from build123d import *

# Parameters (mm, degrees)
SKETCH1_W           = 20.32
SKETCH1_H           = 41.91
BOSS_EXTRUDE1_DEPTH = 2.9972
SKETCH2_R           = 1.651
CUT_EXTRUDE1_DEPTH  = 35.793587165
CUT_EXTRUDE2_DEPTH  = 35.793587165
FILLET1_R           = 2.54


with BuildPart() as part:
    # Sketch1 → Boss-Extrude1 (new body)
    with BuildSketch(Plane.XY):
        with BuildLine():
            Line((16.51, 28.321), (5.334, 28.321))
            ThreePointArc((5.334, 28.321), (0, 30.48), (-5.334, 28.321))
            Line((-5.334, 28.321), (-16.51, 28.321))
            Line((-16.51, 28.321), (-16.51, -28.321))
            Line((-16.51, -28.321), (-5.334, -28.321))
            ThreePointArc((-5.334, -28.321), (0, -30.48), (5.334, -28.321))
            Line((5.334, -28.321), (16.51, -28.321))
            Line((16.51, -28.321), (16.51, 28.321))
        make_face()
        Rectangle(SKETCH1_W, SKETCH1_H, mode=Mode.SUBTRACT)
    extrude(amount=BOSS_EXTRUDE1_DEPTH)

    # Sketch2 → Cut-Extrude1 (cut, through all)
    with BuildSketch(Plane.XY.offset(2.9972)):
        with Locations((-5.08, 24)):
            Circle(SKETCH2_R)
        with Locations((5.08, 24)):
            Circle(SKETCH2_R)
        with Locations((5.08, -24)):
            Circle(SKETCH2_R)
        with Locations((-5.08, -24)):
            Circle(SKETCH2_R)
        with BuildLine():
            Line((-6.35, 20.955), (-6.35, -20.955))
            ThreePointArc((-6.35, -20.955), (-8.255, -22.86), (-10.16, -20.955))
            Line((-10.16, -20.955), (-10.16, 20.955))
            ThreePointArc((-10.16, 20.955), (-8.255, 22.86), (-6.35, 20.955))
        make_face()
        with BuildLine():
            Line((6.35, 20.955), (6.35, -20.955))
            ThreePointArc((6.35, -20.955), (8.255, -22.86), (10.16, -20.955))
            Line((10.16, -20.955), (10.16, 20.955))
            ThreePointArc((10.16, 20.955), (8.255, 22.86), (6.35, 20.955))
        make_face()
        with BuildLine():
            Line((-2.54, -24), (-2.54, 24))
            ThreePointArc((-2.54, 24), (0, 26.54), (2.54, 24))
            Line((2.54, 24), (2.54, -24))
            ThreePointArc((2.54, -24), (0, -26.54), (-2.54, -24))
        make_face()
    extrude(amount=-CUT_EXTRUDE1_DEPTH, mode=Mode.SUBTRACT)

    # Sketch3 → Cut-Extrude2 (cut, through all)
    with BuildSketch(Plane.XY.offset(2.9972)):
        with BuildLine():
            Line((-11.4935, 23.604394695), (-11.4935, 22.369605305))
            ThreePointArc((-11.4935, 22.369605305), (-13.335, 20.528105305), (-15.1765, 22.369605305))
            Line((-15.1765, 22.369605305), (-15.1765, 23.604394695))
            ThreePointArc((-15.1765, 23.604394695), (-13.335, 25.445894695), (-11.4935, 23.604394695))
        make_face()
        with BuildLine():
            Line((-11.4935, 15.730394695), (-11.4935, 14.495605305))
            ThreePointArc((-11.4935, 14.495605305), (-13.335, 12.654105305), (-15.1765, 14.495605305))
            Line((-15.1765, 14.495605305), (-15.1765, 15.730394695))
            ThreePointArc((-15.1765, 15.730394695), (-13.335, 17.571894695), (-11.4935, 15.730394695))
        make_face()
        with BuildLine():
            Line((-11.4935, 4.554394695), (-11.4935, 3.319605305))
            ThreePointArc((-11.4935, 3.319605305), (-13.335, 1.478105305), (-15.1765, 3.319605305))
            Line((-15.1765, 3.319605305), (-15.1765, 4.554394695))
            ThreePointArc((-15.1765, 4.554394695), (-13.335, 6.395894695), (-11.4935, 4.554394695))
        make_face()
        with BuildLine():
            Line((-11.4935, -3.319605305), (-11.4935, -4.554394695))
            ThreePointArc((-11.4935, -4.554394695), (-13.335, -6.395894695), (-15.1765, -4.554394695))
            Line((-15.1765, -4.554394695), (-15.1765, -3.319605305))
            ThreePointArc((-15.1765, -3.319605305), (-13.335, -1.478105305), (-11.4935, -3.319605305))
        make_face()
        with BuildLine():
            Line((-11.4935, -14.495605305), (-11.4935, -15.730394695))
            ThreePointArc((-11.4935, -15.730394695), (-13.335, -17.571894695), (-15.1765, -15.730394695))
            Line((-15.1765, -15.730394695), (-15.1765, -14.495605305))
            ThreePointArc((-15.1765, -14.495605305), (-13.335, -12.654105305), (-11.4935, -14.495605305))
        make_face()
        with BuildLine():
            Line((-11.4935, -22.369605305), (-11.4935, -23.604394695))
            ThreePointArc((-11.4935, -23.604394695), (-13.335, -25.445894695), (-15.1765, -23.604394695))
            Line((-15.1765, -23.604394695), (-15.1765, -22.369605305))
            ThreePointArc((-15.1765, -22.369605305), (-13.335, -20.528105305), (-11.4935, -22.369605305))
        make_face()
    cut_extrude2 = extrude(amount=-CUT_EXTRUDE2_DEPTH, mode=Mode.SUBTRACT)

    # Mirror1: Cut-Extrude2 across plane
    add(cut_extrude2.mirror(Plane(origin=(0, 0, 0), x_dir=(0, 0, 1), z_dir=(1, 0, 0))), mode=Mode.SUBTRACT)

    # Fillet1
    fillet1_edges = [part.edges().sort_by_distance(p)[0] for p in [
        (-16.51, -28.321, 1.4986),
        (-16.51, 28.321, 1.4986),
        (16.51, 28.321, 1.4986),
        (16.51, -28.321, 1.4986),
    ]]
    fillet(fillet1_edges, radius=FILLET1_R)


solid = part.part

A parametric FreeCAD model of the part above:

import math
import FreeCAD as App
import Part
import Sketcher
from FreeCAD import Vector
Q = App.Units.Quantity


def edges_at(feature, points):
    """Names of the edges that pass closest to the given points."""
    edges = feature.Shape.Edges
    near = lambda p: min(range(len(edges)), key=lambda i: edges[i].distToShape(Part.Vertex(*p))[0])
    return sorted({f"Edge{near(p) + 1}" for p in points})


def add_polygon(sketch, points):
    """Adds a closed chain of lines whose ends are joined by coincident constraints."""
    first, n = sketch.GeometryCount, len(points)
    for a, b in zip(points, points[1:] + points[:1]):
        sketch.addGeometry(Part.LineSegment(App.Vector(*a, 0), App.Vector(*b, 0)), False)
    for i in range(n):
        sketch.addConstraint(Sketcher.Constraint("Coincident", first + i, 2, first + (i + 1) % n, 1))

doc = App.newDocument("Part")
params = doc.addObject("Spreadsheet::Sheet", "Params")
for row, (alias, value) in enumerate([
    ("sketch1_width", "0.8 in"),
    ("sketch1_width2", "0.44 in"),
    ("sketch1_height", "2.23 in"),
    ("sketch1_height2", "1.65 in"),
    ("pad1_length", "0.118 in"),
    ("sketch2_radius", "0.1 in"),
    ("sketch2_diameter", "0.13 in"),
    ("sketch2_radius2", "0.075 in"),
    ("sketch2_height", "1.65 in"),
    ("fillet_radius", "0.1 in"),
], start=1):
    params.set(f"A{row}", alias)
    params.set(f"B{row}", "=" + value)
    params.setAlias(f"B{row}", alias)

body = doc.addObject("PartDesign::Body", "Body")

sketch1 = body.newObject("Sketcher::SketchObject", "Sketch")
sketch1.AttachmentSupport = (doc.getObject("XY_Plane"), [""])
sketch1.MapMode = "FlatFace"
sketch1.addGeometry(Part.LineSegment(Vector(17, 28, 0), Vector(5, 28, 0)), False)
sketch1.addGeometry(Part.ArcOfCircle(Part.Circle(Vector(0, 23, 0), Vector(0, 0, 1), 8), math.radians(46), math.radians(134)), False)
sketch1.addGeometry(Part.LineSegment(Vector(-5, 28, 0), Vector(-17, 28, 0)), False)
sketch1.addGeometry(Part.LineSegment(Vector(-17, 28, 0), Vector(-17, -28, 0)), False)
sketch1.addGeometry(Part.LineSegment(Vector(-17, -28, 0), Vector(-5, -28, 0)), False)
sketch1.addGeometry(Part.ArcOfCircle(Part.Circle(Vector(0, -23, 0), Vector(0, 0, 1), 8), math.radians(-134), math.radians(-46)), False)
sketch1.addGeometry(Part.LineSegment(Vector(5, -28, 0), Vector(17, -28, 0)), False)
sketch1.addGeometry(Part.LineSegment(Vector(17, -28, 0), Vector(17, 28, 0)), False)
add_polygon(sketch1, [(10, -21), (-10, -21), (-10, 21), (10, 21)])
sketch1.addConstraint(Sketcher.Constraint("Coincident", 0, 2, 1, 1))
sketch1.addConstraint(Sketcher.Constraint("Coincident", 1, 2, 2, 1))
sketch1.addConstraint(Sketcher.Constraint("Coincident", 2, 2, 3, 1))
sketch1.addConstraint(Sketcher.Constraint("Coincident", 3, 2, 4, 1))
sketch1.addConstraint(Sketcher.Constraint("Coincident", 4, 2, 5, 1))
sketch1.addConstraint(Sketcher.Constraint("Coincident", 5, 2, 6, 1))
sketch1.addConstraint(Sketcher.Constraint("Coincident", 6, 2, 7, 1))
sketch1.addConstraint(Sketcher.Constraint("Coincident", 7, 2, 0, 1))
sketch1.addConstraint(Sketcher.Constraint("Horizontal", 0))
sketch1.addConstraint(Sketcher.Constraint("Horizontal", 2))
sketch1.addConstraint(Sketcher.Constraint("Vertical", 3))
sketch1.addConstraint(Sketcher.Constraint("Horizontal", 4))
sketch1.addConstraint(Sketcher.Constraint("Horizontal", 6))
sketch1.addConstraint(Sketcher.Constraint("Vertical", 7))
sketch1.addConstraint(Sketcher.Constraint("Horizontal", 8))
sketch1.addConstraint(Sketcher.Constraint("Vertical", 9))
sketch1.addConstraint(Sketcher.Constraint("Horizontal", 10))
sketch1.addConstraint(Sketcher.Constraint("Vertical", 11))
sketch1.addConstraint(Sketcher.Constraint("Equal", 1, 5))
sketch1.addConstraint(Sketcher.Constraint("Symmetric", 1, 3, 5, 3, -1, 1))
sketch1.addConstraint(Sketcher.Constraint("Symmetric", 2, 2, 6, 2, -1, 1))
sketch1.addConstraint(Sketcher.Constraint("Symmetric", 8, 2, 10, 2, -1, 1))
sketch1.addConstraint(Sketcher.Constraint("Symmetric", 0, 2, 1, 2, -2))
sketch1.addConstraint(Sketcher.Constraint("Horizontal", 4, 2, 5, 2))
sketch1.addConstraint(Sketcher.Constraint("DistanceX", 8, 2, 8, 1, Q("0.8 in")))
sketch1.addConstraint(Sketcher.Constraint("DistanceX", 0, 2, 0, 1, Q("0.44 in")))
sketch1.addConstraint(Sketcher.Constraint("DistanceY", 3, 2, 3, 1, Q("2.23 in")))
sketch1.addConstraint(Sketcher.Constraint("DistanceY", 9, 1, 9, 2, Q("1.65 in")))
sketch1.addConstraint(Sketcher.Constraint("DistanceX", 3, 2, 6, 2, Q("1.3 in")))
sketch1.addConstraint(Sketcher.Constraint("Radius", 1, Q("7.668559 mm")))
sketch1.setExpression("Constraints[28]", "Params.sketch1_width")
sketch1.setExpression("Constraints[29]", "Params.sketch1_width2")
sketch1.setExpression("Constraints[30]", "Params.sketch1_height")
sketch1.setExpression("Constraints[31]", "Params.sketch1_height2")
pad1 = body.newObject("PartDesign::Pad", "Pad")
pad1.Profile = sketch1
pad1.setExpression("Length", "Params.pad1_length")

sketch2 = body.newObject("Sketcher::SketchObject", "Sketch001")
sketch2.AttachmentSupport = (doc.getObject("XY_Plane"), [""])
sketch2.MapMode = "FlatFace"
sketch2.AttachmentOffset = App.Placement(Vector(0, 0, 0.118 * 25.4), App.Rotation())
sketch2.addGeometry(Part.Circle(Vector(-5.1, 24, 0), Vector(0, 0, 1), 1.7), False)
sketch2.addGeometry(Part.Circle(Vector(5.1, 24, 0), Vector(0, 0, 1), 1.7), False)
sketch2.addGeometry(Part.Circle(Vector(5.1, -24, 0), Vector(0, 0, 1), 1.7), False)
sketch2.addGeometry(Part.Circle(Vector(-5.1, -24, 0), Vector(0, 0, 1), 1.7), False)
sketch2.addGeometry(Part.LineSegment(Vector(-6.3, -21, 0), Vector(-6.3, 21, 0)), False)
sketch2.addGeometry(Part.ArcOfCircle(Part.Circle(Vector(-8.3, 21, 0), Vector(0, 0, 1), 1.9), math.radians(0), math.radians(180)), False)
sketch2.addGeometry(Part.LineSegment(Vector(-10.2, 21, 0), Vector(-10.2, -21, 0)), False)
sketch2.addGeometry(Part.ArcOfCircle(Part.Circle(Vector(-8.3, -21, 0), Vector(0, 0, 1), 1.9), math.radians(180), math.radians(360)), False)
sketch2.addGeometry(Part.LineSegment(Vector(6.3, 21, 0), Vector(6.3, -21, 0)), False)
sketch2.addGeometry(Part.ArcOfCircle(Part.Circle(Vector(8.3, -21, 0), Vector(0, 0, 1), 1.9), math.radians(180), math.radians(360)), False)
sketch2.addGeometry(Part.LineSegment(Vector(10.2, -21, 0), Vector(10.2, 21, 0)), False)
sketch2.addGeometry(Part.ArcOfCircle(Part.Circle(Vector(8.3, 21, 0), Vector(0, 0, 1), 1.9), math.radians(0), math.radians(180)), False)
sketch2.addGeometry(Part.LineSegment(Vector(-2.5, 24, 0), Vector(-2.5, -24, 0)), False)
sketch2.addGeometry(Part.ArcOfCircle(Part.Circle(Vector(0, -24, 0), Vector(0, 0, 1), 2.5), math.radians(180), math.radians(360)), False)
sketch2.addGeometry(Part.LineSegment(Vector(2.5, -24, 0), Vector(2.5, 24, 0)), False)
sketch2.addGeometry(Part.ArcOfCircle(Part.Circle(Vector(0, 24, 0), Vector(0, 0, 1), 2.5), math.radians(0), math.radians(180)), False)
sketch2.addConstraint(Sketcher.Constraint("Tangent", 4, 2, 5, 1))
sketch2.addConstraint(Sketcher.Constraint("Tangent", 5, 2, 6, 1))
sketch2.addConstraint(Sketcher.Constraint("Tangent", 6, 2, 7, 1))
sketch2.addConstraint(Sketcher.Constraint("Tangent", 7, 2, 4, 1))
sketch2.addConstraint(Sketcher.Constraint("Tangent", 8, 2, 9, 1))
sketch2.addConstraint(Sketcher.Constraint("Tangent", 9, 2, 10, 1))
sketch2.addConstraint(Sketcher.Constraint("Tangent", 10, 2, 11, 1))
sketch2.addConstraint(Sketcher.Constraint("Tangent", 11, 2, 8, 1))
sketch2.addConstraint(Sketcher.Constraint("Tangent", 12, 2, 13, 1))
sketch2.addConstraint(Sketcher.Constraint("Tangent", 13, 2, 14, 1))
sketch2.addConstraint(Sketcher.Constraint("Tangent", 14, 2, 15, 1))
sketch2.addConstraint(Sketcher.Constraint("Tangent", 15, 2, 12, 1))
sketch2.addConstraint(Sketcher.Constraint("Vertical", 4))
sketch2.addConstraint(Sketcher.Constraint("Vertical", 6))
sketch2.addConstraint(Sketcher.Constraint("Vertical", 8))
sketch2.addConstraint(Sketcher.Constraint("Vertical", 10))
sketch2.addConstraint(Sketcher.Constraint("Vertical", 12))
sketch2.addConstraint(Sketcher.Constraint("Vertical", 14))
sketch2.addConstraint(Sketcher.Constraint("Equal", 0, 1))
sketch2.addConstraint(Sketcher.Constraint("Equal", 1, 2))
sketch2.addConstraint(Sketcher.Constraint("Equal", 2, 3))
sketch2.addConstraint(Sketcher.Constraint("Equal", 7, 9))
sketch2.addConstraint(Sketcher.Constraint("Symmetric", 0, 3, 2, 3, -1, 1))
sketch2.addConstraint(Sketcher.Constraint("Symmetric", 1, 3, 3, 3, -1, 1))
sketch2.addConstraint(Sketcher.Constraint("Symmetric", 5, 3, 9, 3, -1, 1))
sketch2.addConstraint(Sketcher.Constraint("Symmetric", 13, 3, 15, 3, -1, 1))
sketch2.addConstraint(Sketcher.Constraint("Symmetric", 0, 3, 1, 3, -2))
sketch2.addConstraint(Sketcher.Constraint("Horizontal", 7, 3, 9, 3))
sketch2.addConstraint(Sketcher.Constraint("Horizontal", 5, 3, 11, 3))
sketch2.addConstraint(Sketcher.Constraint("Horizontal", 3, 3, 13, 3))
sketch2.addConstraint(Sketcher.Constraint("Radius", 13, Q("0.1 in")))
sketch2.addConstraint(Sketcher.Constraint("Diameter", 0, Q("0.13 in")))
sketch2.addConstraint(Sketcher.Constraint("Radius", 5, Q("0.075 in")))
sketch2.addConstraint(Sketcher.Constraint("DistanceY", 4, 1, 4, 2, Q("1.65 in")))
sketch2.addConstraint(Sketcher.Constraint("DistanceX", 0, 3, -1, 1, Q("0.2 in")))
sketch2.addConstraint(Sketcher.Constraint("DistanceX", 5, 2, -1, 1, Q("0.4 in")))
sketch2.addConstraint(Sketcher.Constraint("DistanceY", 12, 2, 12, 1, Q("48 mm")))
sketch2.setExpression("Constraints[30]", "Params.sketch2_radius")
sketch2.setExpression("Constraints[31]", "Params.sketch2_diameter")
sketch2.setExpression("Constraints[32]", "Params.sketch2_radius2")
sketch2.setExpression("Constraints[33]", "Params.sketch2_height")
pocket1 = body.newObject("PartDesign::Pocket", "Pocket")
pocket1.Profile = sketch2
pocket1.Type = "ThroughAll"

sketch3 = body.newObject("Sketcher::SketchObject", "Sketch002")
sketch3.AttachmentSupport = (doc.getObject("XY_Plane"), [""])
sketch3.MapMode = "FlatFace"
sketch3.AttachmentOffset = App.Placement(Vector(0, 0, 0.118 * 25.4), App.Rotation())
sketch3.addGeometry(Part.LineSegment(Vector(-11.5, 22.4, 0), Vector(-11.5, 23.6, 0)), False)
sketch3.addGeometry(Part.ArcOfCircle(Part.Circle(Vector(-13.3, 23.6, 0), Vector(0, 0, 1), 1.8), math.radians(0), math.radians(180)), False)
sketch3.addGeometry(Part.LineSegment(Vector(-15.2, 23.6, 0), Vector(-15.2, 22.4, 0)), False)
sketch3.addGeometry(Part.ArcOfCircle(Part.Circle(Vector(-13.3, 22.4, 0), Vector(0, 0, 1), 1.8), math.radians(180), math.radians(360)), False)
sketch3.addGeometry(Part.LineSegment(Vector(-11.5, 14.5, 0), Vector(-11.5, 15.7, 0)), False)
sketch3.addGeometry(Part.ArcOfCircle(Part.Circle(Vector(-13.3, 15.7, 0), Vector(0, 0, 1), 1.8), math.radians(0), math.radians(180)), False)
sketch3.addGeometry(Part.LineSegment(Vector(-15.2, 15.7, 0), Vector(-15.2, 14.5, 0)), False)
sketch3.addGeometry(Part.ArcOfCircle(Part.Circle(Vector(-13.3, 14.5, 0), Vector(0, 0, 1), 1.8), math.radians(180), math.radians(360)), False)
sketch3.addGeometry(Part.LineSegment(Vector(-11.5, 3.3, 0), Vector(-11.5, 4.6, 0)), False)
sketch3.addGeometry(Part.ArcOfCircle(Part.Circle(Vector(-13.3, 4.6, 0), Vector(0, 0, 1), 1.8), math.radians(0), math.radians(180)), False)
sketch3.addGeometry(Part.LineSegment(Vector(-15.2, 4.6, 0), Vector(-15.2, 3.3, 0)), False)
sketch3.addGeometry(Part.ArcOfCircle(Part.Circle(Vector(-13.3, 3.3, 0), Vector(0, 0, 1), 1.8), math.radians(180), math.radians(360)), False)
sketch3.addGeometry(Part.LineSegment(Vector(-11.5, -4.6, 0), Vector(-11.5, -3.3, 0)), False)
sketch3.addGeometry(Part.ArcOfCircle(Part.Circle(Vector(-13.3, -3.3, 0), Vector(0, 0, 1), 1.8), math.radians(0), math.radians(180)), False)
sketch3.addGeometry(Part.LineSegment(Vector(-15.2, -3.3, 0), Vector(-15.2, -4.6, 0)), False)
sketch3.addGeometry(Part.ArcOfCircle(Part.Circle(Vector(-13.3, -4.6, 0), Vector(0, 0, 1), 1.8), math.radians(180), math.radians(360)), False)
sketch3.addGeometry(Part.LineSegment(Vector(-11.5, -15.7, 0), Vector(-11.5, -14.5, 0)), False)
sketch3.addGeometry(Part.ArcOfCircle(Part.Circle(Vector(-13.3, -14.5, 0), Vector(0, 0, 1), 1.8), math.radians(0), math.radians(180)), False)
sketch3.addGeometry(Part.LineSegment(Vector(-15.2, -14.5, 0), Vector(-15.2, -15.7, 0)), False)
sketch3.addGeometry(Part.ArcOfCircle(Part.Circle(Vector(-13.3, -15.7, 0), Vector(0, 0, 1), 1.8), math.radians(180), math.radians(360)), False)
sketch3.addGeometry(Part.LineSegment(Vector(-11.5, -23.6, 0), Vector(-11.5, -22.4, 0)), False)
sketch3.addGeometry(Part.ArcOfCircle(Part.Circle(Vector(-13.3, -22.4, 0), Vector(0, 0, 1), 1.8), math.radians(0), math.radians(180)), False)
sketch3.addGeometry(Part.LineSegment(Vector(-15.2, -22.4, 0), Vector(-15.2, -23.6, 0)), False)
sketch3.addGeometry(Part.ArcOfCircle(Part.Circle(Vector(-13.3, -23.6, 0), Vector(0, 0, 1), 1.8), math.radians(180), math.radians(360)), False)
sketch3.addConstraint(Sketcher.Constraint("Tangent", 0, 2, 1, 1))
sketch3.addConstraint(Sketcher.Constraint("Tangent", 1, 2, 2, 1))
sketch3.addConstraint(Sketcher.Constraint("Tangent", 2, 2, 3, 1))
sketch3.addConstraint(Sketcher.Constraint("Tangent", 3, 2, 0, 1))
sketch3.addConstraint(Sketcher.Constraint("Tangent", 4, 2, 5, 1))
sketch3.addConstraint(Sketcher.Constraint("Tangent", 5, 2, 6, 1))
sketch3.addConstraint(Sketcher.Constraint("Tangent", 6, 2, 7, 1))
sketch3.addConstraint(Sketcher.Constraint("Tangent", 7, 2, 4, 1))
sketch3.addConstraint(Sketcher.Constraint("Tangent", 8, 2, 9, 1))
sketch3.addConstraint(Sketcher.Constraint("Tangent", 9, 2, 10, 1))
sketch3.addConstraint(Sketcher.Constraint("Tangent", 10, 2, 11, 1))
sketch3.addConstraint(Sketcher.Constraint("Tangent", 11, 2, 8, 1))
sketch3.addConstraint(Sketcher.Constraint("Tangent", 12, 2, 13, 1))
sketch3.addConstraint(Sketcher.Constraint("Tangent", 13, 2, 14, 1))
sketch3.addConstraint(Sketcher.Constraint("Tangent", 14, 2, 15, 1))
sketch3.addConstraint(Sketcher.Constraint("Tangent", 15, 2, 12, 1))
sketch3.addConstraint(Sketcher.Constraint("Tangent", 16, 2, 17, 1))
sketch3.addConstraint(Sketcher.Constraint("Tangent", 17, 2, 18, 1))
sketch3.addConstraint(Sketcher.Constraint("Tangent", 18, 2, 19, 1))
sketch3.addConstraint(Sketcher.Constraint("Tangent", 19, 2, 16, 1))
sketch3.addConstraint(Sketcher.Constraint("Tangent", 20, 2, 21, 1))
sketch3.addConstraint(Sketcher.Constraint("Tangent", 21, 2, 22, 1))
sketch3.addConstraint(Sketcher.Constraint("Tangent", 22, 2, 23, 1))
sketch3.addConstraint(Sketcher.Constraint("Tangent", 23, 2, 20, 1))
sketch3.addConstraint(Sketcher.Constraint("Vertical", 0))
sketch3.addConstraint(Sketcher.Constraint("Vertical", 2))
sketch3.addConstraint(Sketcher.Constraint("Vertical", 4))
sketch3.addConstraint(Sketcher.Constraint("Vertical", 6))
sketch3.addConstraint(Sketcher.Constraint("Vertical", 8))
sketch3.addConstraint(Sketcher.Constraint("Vertical", 10))
sketch3.addConstraint(Sketcher.Constraint("Vertical", 12))
sketch3.addConstraint(Sketcher.Constraint("Vertical", 14))
sketch3.addConstraint(Sketcher.Constraint("Vertical", 16))
sketch3.addConstraint(Sketcher.Constraint("Vertical", 18))
sketch3.addConstraint(Sketcher.Constraint("Vertical", 20))
sketch3.addConstraint(Sketcher.Constraint("Vertical", 22))
sketch3.addConstraint(Sketcher.Constraint("Equal", 3, 5))
sketch3.addConstraint(Sketcher.Constraint("Equal", 7, 9))
sketch3.addConstraint(Sketcher.Constraint("Equal", 11, 13))
sketch3.addConstraint(Sketcher.Constraint("Equal", 15, 17))
sketch3.addConstraint(Sketcher.Constraint("Equal", 19, 21))
sketch3.addConstraint(Sketcher.Constraint("Symmetric", 11, 3, 13, 3, -1))
sketch3.addConstraint(Sketcher.Constraint("Symmetric", 7, 3, 17, 3, -1))
sketch3.addConstraint(Sketcher.Constraint("Symmetric", 3, 3, 21, 3, -1))
sketch3.addConstraint(Sketcher.Constraint("Vertical", 3, 3, 5, 3))
sketch3.addConstraint(Sketcher.Constraint("Vertical", 7, 3, 9, 3))
sketch3.addConstraint(Sketcher.Constraint("Equal", 2, 4))
sketch3.addConstraint(Sketcher.Constraint("Equal", 6, 8))
sketch3.addConstraint(Sketcher.Constraint("Equal", 10, 12))
sketch3.addConstraint(Sketcher.Constraint("Equal", 14, 16))
sketch3.addConstraint(Sketcher.Constraint("Equal", 18, 20))
sketch3.addConstraint(Sketcher.Constraint("Radius", 1, Q("0.0725 in")))
sketch3.addConstraint(Sketcher.Constraint("DistanceY", 5, 3, 1, 3, Q("0.31 in")))
sketch3.addConstraint(Sketcher.Constraint("DistanceY", 9, 3, 5, 3, Q("0.44 in")))
sketch3.addConstraint(Sketcher.Constraint("DistanceY", 13, 3, 9, 3, Q("0.31 in")))
sketch3.addConstraint(Sketcher.Constraint("DistanceX", 1, 3, -1, 1, Q("0.525 in")))
sketch3.addConstraint(Sketcher.Constraint("DistanceY", 0, 1, 0, 2, Q("1.234789 mm")))
pocket2 = body.newObject("PartDesign::Pocket", "Pocket001")
pocket2.Profile = sketch3
pocket2.Type = "ThroughAll"
doc.recompute()

mirrored = body.newObject("PartDesign::Mirrored", "Mirrored")
mirrored.Originals = [pocket2]
mirrored.MirrorPlane = (doc.getObject("YZ_Plane"), [""])
body.Tip = mirrored
doc.recompute()

fillet = body.newObject("PartDesign::Fillet", "Fillet")
fillet.Base = (mirrored, edges_at(mirrored, [
    (-16.51, -28.321, 1.499),
    (-16.51, 28.321, 1.499),
    (16.51, 28.321, 1.499),
    (16.51, -28.321, 1.499),
]))
fillet.setExpression("Radius", "Params.fillet_radius")

doc.recompute()
